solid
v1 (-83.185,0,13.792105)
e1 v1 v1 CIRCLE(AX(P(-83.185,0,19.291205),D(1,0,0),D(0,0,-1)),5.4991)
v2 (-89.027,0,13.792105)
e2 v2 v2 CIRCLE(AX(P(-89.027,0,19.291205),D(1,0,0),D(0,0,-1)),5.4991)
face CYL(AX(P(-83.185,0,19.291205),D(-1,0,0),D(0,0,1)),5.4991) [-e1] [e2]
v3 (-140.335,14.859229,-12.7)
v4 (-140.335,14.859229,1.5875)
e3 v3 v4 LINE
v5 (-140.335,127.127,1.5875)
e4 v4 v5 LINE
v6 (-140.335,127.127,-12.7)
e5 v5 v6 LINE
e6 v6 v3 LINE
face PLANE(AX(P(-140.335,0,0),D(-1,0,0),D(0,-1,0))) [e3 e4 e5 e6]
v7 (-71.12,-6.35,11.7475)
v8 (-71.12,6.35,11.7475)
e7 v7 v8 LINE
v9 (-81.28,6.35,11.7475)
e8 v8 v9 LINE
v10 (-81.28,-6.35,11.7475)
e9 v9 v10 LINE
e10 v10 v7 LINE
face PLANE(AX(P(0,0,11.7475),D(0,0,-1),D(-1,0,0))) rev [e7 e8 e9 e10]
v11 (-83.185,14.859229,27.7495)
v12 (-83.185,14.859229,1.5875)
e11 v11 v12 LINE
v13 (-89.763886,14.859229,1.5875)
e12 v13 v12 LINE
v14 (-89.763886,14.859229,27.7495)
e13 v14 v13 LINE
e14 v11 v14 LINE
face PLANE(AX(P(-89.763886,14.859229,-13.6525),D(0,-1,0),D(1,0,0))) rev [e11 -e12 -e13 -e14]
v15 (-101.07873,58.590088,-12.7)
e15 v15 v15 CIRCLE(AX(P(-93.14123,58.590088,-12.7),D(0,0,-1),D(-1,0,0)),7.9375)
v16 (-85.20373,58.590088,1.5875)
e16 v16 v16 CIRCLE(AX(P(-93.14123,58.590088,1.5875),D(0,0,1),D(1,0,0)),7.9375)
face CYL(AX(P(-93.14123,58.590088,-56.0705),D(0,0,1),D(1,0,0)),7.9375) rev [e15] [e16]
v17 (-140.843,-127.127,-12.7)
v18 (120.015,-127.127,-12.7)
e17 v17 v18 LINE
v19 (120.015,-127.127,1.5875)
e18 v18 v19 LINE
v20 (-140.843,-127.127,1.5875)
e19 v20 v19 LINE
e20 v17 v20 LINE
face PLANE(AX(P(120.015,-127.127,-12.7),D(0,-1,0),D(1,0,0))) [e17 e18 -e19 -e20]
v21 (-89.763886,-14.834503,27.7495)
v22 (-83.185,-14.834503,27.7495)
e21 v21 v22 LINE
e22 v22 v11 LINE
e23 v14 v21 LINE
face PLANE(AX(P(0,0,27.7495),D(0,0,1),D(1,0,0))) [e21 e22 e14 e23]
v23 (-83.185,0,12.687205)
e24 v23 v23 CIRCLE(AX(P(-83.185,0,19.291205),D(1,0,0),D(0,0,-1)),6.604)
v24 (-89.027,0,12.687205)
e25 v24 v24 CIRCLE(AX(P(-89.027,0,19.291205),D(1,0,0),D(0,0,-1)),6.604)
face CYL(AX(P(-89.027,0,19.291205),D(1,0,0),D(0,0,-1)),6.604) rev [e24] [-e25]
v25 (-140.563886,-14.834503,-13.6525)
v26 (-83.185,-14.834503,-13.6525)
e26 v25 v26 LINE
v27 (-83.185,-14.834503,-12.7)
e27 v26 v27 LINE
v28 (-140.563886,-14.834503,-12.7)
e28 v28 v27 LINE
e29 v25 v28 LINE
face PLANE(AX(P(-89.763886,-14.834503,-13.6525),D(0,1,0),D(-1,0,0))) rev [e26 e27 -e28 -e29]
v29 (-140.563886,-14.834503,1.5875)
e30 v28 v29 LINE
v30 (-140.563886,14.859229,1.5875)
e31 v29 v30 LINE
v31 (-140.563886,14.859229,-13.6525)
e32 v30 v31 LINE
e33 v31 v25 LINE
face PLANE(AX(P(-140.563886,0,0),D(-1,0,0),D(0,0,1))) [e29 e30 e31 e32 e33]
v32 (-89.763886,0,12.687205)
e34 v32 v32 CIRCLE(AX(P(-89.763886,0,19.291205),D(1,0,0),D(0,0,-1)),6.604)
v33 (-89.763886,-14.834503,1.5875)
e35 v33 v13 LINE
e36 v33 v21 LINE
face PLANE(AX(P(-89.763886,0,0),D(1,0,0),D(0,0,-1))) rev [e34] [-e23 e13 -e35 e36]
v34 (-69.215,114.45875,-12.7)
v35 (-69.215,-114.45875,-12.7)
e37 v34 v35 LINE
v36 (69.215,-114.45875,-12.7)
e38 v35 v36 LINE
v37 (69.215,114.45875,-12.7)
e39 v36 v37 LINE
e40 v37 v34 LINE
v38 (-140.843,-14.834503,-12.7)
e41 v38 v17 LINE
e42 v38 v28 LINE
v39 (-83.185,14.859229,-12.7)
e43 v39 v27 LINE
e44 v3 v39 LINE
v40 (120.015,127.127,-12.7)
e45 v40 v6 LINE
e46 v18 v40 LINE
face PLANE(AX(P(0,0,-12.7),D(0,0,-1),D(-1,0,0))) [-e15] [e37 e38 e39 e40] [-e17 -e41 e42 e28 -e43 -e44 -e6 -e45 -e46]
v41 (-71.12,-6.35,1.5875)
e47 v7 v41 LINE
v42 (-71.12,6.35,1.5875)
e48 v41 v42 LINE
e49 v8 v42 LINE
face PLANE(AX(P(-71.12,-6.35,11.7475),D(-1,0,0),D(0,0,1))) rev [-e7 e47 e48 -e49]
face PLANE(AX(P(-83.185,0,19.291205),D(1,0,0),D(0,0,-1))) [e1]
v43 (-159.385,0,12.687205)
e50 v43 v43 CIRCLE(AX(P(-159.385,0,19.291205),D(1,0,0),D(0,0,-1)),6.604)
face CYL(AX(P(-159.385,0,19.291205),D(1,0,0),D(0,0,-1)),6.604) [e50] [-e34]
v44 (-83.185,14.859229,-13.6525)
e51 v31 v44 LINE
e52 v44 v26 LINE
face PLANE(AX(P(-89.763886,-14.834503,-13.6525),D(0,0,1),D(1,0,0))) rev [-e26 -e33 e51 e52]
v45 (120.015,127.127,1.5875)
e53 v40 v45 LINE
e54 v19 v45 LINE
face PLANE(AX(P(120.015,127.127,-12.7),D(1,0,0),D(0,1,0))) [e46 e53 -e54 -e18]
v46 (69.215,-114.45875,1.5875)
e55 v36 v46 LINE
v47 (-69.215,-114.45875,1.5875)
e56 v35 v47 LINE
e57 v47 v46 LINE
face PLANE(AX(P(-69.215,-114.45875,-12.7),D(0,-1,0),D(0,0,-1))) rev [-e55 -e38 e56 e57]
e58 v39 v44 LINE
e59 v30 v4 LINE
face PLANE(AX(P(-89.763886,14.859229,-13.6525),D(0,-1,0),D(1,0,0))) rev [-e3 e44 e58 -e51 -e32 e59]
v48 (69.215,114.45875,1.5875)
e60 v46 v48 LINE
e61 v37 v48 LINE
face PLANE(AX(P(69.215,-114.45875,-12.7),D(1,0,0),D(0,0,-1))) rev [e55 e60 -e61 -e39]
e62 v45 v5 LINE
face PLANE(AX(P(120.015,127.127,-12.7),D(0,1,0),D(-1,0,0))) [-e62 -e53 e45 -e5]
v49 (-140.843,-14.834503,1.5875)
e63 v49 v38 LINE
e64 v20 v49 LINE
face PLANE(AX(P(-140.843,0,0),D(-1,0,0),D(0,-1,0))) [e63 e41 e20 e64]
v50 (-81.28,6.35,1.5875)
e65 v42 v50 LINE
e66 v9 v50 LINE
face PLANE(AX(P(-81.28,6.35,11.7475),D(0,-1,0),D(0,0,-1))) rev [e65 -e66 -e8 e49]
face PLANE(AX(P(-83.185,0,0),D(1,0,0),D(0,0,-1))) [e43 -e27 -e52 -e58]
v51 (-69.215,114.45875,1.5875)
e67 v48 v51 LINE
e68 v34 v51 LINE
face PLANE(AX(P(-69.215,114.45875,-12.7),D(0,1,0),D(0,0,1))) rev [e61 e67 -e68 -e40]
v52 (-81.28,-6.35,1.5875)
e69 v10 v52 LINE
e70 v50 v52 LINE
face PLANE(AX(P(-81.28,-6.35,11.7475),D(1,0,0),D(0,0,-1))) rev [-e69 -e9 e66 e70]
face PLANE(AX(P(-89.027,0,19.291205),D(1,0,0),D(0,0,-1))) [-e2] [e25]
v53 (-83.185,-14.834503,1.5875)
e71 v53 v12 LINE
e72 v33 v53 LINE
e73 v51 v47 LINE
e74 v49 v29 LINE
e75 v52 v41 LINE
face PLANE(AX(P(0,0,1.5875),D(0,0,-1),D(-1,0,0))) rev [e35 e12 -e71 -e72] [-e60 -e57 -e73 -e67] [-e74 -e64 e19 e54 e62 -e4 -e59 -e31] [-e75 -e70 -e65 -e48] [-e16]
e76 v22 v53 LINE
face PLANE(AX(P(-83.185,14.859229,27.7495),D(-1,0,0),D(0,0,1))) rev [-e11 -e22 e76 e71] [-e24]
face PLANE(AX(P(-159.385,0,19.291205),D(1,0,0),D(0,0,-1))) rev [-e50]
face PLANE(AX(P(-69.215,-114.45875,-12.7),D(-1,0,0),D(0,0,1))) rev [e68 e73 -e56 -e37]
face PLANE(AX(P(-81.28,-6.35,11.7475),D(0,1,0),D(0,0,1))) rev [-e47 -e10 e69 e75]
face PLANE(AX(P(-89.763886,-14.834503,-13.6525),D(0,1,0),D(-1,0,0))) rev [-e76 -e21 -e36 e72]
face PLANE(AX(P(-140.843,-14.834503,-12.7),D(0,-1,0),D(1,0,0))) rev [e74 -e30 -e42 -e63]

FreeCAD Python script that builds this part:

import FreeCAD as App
import Part
import Sketcher
Q = App.Units.Quantity


def add_polygon(sketch, points):
    """Adds a closed chain of lines whose ends are joined by coincident constraints."""
    first, n = sketch.GeometryCount, len(points)
    for a, b in zip(points, points[1:] + points[:1]):
        sketch.addGeometry(Part.LineSegment(App.Vector(*a, 0), App.Vector(*b, 0)), False)
    for i in range(n):
        sketch.addConstraint(Sketcher.Constraint("Coincident", first + i, 2, first + (i + 1) % n, 1))

doc = App.newDocument("Part")
params = doc.addObject("Spreadsheet::Sheet", "Params")
for row, (alias, value) in enumerate([
    ("sketch1_width", "8 in"),
    ("sketch1_width2", "5.45 in"),
    ("sketch1_height", "10.01 in"),
    ("pad1_length", "0.0625 in"),
    ("pad1_length2", "0.5 in"),
    ("sketch2_width", "0.4 in"),
    ("sketch2_height", "0.5 in"),
    ("pad2_length", "0.4 in"),
    ("sketch3_height", "0.6 in"),
    ("pad3_length", "6.578886 mm"),
    ("pad4_length", "1.03 in"),
    ("sketch5_diameter", "0.52 in"),
    ("pad5_length", "3 in"),
    ("sketch6_diameter", "0.52 in"),
    ("pocket1_length", "0.23 in"),
    ("sketch7_diameter", "0.433 in"),
    ("pad6_length", "0.23 in"),
    ("sketch8_height", "0.6 in"),
    ("pad7_length", "2 in"),
    ("sketch9_height", "0.5625 in"),
    ("pad8_length", "2.25 in"),
    ("sketch10_height", "0.5625 in"),
    ("pad9_length", "2.27 in"),
    ("sketch11_diameter", "0.625 in"),
    ("pocket2_length", "2.27 in"),
], start=1):
    params.set(f"A{row}", alias)
    params.set(f"B{row}", "=" + value)
    params.setAlias(f"B{row}", alias)

body = doc.addObject("PartDesign::Body", "Body")

# Sketch on XY plane
sketch1 = body.newObject("Sketcher::SketchObject", "Sketch")
sketch1.AttachmentSupport = (doc.getObject("XY_Plane"), [""])
sketch1.MapMode = "FlatFace"
add_polygon(sketch1, [(-83.185, 127.127), (-83.185, -127.127), (120.015, -127.127), (120.015, 127.127)])  # lines 0-3
add_polygon(sketch1, [(69.215, -114.45875), (-69.215, -114.45875), (-69.215, 114.45875), (69.215, 114.45875)])  # lines 4-7
sketch1.addConstraint(Sketcher.Constraint("Vertical", 0))
sketch1.addConstraint(Sketcher.Constraint("Horizontal", 1))
sketch1.addConstraint(Sketcher.Constraint("Vertical", 2))
sketch1.addConstraint(Sketcher.Constraint("Horizontal", 3))
sketch1.addConstraint(Sketcher.Constraint("Horizontal", 4))
sketch1.addConstraint(Sketcher.Constraint("Vertical", 5))
sketch1.addConstraint(Sketcher.Constraint("Horizontal", 6))
sketch1.addConstraint(Sketcher.Constraint("Vertical", 7))
sketch1.addConstraint(Sketcher.Constraint("Symmetric", 4, 2, 6, 2, -1, 1))
sketch1.addConstraint(Sketcher.Constraint("DistanceX", 1, 1, 1, 2, Q("8 in")))
sketch1.addConstraint(Sketcher.Constraint("DistanceX", 6, 2, 2, 2, Q("2 in")))
sketch1.addConstraint(Sketcher.Constraint("DistanceX", 4, 2, 4, 1, Q("5.45 in")))
sketch1.addConstraint(Sketcher.Constraint("DistanceY", 0, 2, 0, 1, Q("10.01 in")))
sketch1.addConstraint(Sketcher.Constraint("DistanceY", 5, 1, 5, 2, Q("9.0125 in")))
sketch1.addConstraint(Sketcher.Constraint("DistanceY", 0, 2, -1, 1, Q("5.005 in")))
sketch1.setExpression("Constraints[17]", "Params.sketch1_width")
sketch1.setExpression("Constraints[19]", "Params.sketch1_width2")
sketch1.setExpression("Constraints[20]", "Params.sketch1_height")
pad1 = body.newObject("PartDesign::Pad", "Pad")
pad1.Profile = sketch1
pad1.Type = "TwoLengths"
pad1.setExpression("Length", "Params.pad1_length")
pad1.setExpression("Length2", "Params.pad1_length2")

# Sketch on XY plane
sketch2 = body.newObject("Sketcher::SketchObject", "Sketch001")
sketch2.AttachmentSupport = (doc.getObject("XY_Plane"), [""])
sketch2.MapMode = "FlatFace"
sketch2.AttachmentOffset = App.Placement(App.Vector(0, 0, 0.0625 * 25.4), App.Rotation())
add_polygon(sketch2, [(-81.28, 6.35), (-81.28, -6.35), (-71.12, -6.35), (-71.12, 6.35)])  # lines 0-3
sketch2.addConstraint(Sketcher.Constraint("Vertical", 0))
sketch2.addConstraint(Sketcher.Constraint("Horizontal", 1))
sketch2.addConstraint(Sketcher.Constraint("Vertical", 2))
sketch2.addConstraint(Sketcher.Constraint("Horizontal", 3))
sketch2.addConstraint(Sketcher.Constraint("DistanceX", 1, 1, 1, 2, Q("0.4 in")))
sketch2.addConstraint(Sketcher.Constraint("DistanceY", 0, 2, 0, 1, Q("0.5 in")))
sketch2.addConstraint(Sketcher.Constraint("DistanceX", 0, 2, -1, 1, Q("3.2 in")))
sketch2.addConstraint(Sketcher.Constraint("DistanceY", 0, 2, -1, 1, Q("0.25 in")))
sketch2.setExpression("Constraints[8]", "Params.sketch2_width")
sketch2.setExpression("Constraints[9]", "Params.sketch2_height")
pad2 = body.newObject("PartDesign::Pad", "Pad001")
pad2.Profile = sketch2
pad2.setExpression("Length", "Params.pad2_length")

# Sketch on YZ plane
sketch3 = body.newObject("Sketcher::SketchObject", "Sketch002")
sketch3.AttachmentSupport = (doc.getObject("YZ_Plane"), [""])
sketch3.MapMode = "FlatFace"
sketch3.AttachmentOffset = App.Placement(App.Vector(0, 0, -3.275 * 25.4), App.Rotation())
add_polygon(sketch3, [(14.859229, -13.6525), (-14.834503, -13.6525), (-14.834503, 1.5875), (14.859229, 1.5875)])  # lines 0-3
sketch3.addConstraint(Sketcher.Constraint("Horizontal", 0))
sketch3.addConstraint(Sketcher.Constraint("Vertical", 1))
sketch3.addConstraint(Sketcher.Constraint("Horizontal", 2))
sketch3.addConstraint(Sketcher.Constraint("Vertical", 3))
sketch3.addConstraint(Sketcher.Constraint("DistanceY", 1, 1, 1, 2, Q("0.6 in")))
sketch3.addConstraint(Sketcher.Constraint("DistanceY", -1, 1, 1, 2, Q("0.0625 in")))
sketch3.addConstraint(Sketcher.Constraint("DistanceX", 0, 2, 0, 1, Q("29.693732 mm")))
sketch3.addConstraint(Sketcher.Constraint("DistanceX", -1, 1, 2, 2, Q("14.859229 mm")))
sketch3.setExpression("Constraints[8]", "Params.sketch3_height")
pad3 = body.newObject("PartDesign::Pad", "Pad002")
pad3.Profile = sketch3
pad3.setExpression("Length", "Params.pad3_length")
pad3.Reversed = True

# Sketch on XY plane
sketch4 = body.newObject("Sketcher::SketchObject", "Sketch003")
sketch4.AttachmentSupport = (doc.getObject("XY_Plane"), [""])
sketch4.MapMode = "FlatFace"
sketch4.AttachmentOffset = App.Placement(App.Vector(0, 0, 0.0625 * 25.4), App.Rotation())
add_polygon(sketch4, [(-89.763886, 14.859229), (-89.763886, -14.834503), (-83.185, -14.834503), (-83.185, 14.859229)])  # lines 0-3
sketch4.addConstraint(Sketcher.Constraint("Vertical", 0))
sketch4.addConstraint(Sketcher.Constraint("Horizontal", 1))
sketch4.addConstraint(Sketcher.Constraint("Vertical", 2))
sketch4.addConstraint(Sketcher.Constraint("Horizontal", 3))
sketch4.addConstraint(Sketcher.Constraint("DistanceX", 1, 2, -1, 1, Q("3.275 in")))
sketch4.addConstraint(Sketcher.Constraint("DistanceX", 1, 1, 1, 2, Q("6.578886 mm")))
sketch4.addConstraint(Sketcher.Constraint("DistanceY", 0, 2, 0, 1, Q("29.693732 mm")))
sketch4.addConstraint(Sketcher.Constraint("DistanceY", -1, 1, 2, 2, Q("14.859229 mm")))
pad4 = body.newObject("PartDesign::Pad", "Pad003")
pad4.Profile = sketch4
pad4.setExpression("Length", "Params.pad4_length")

# Sketch on YZ plane
sketch5 = body.newObject("Sketcher::SketchObject", "Sketch004")
sketch5.AttachmentSupport = (doc.getObject("YZ_Plane"), [""])
sketch5.MapMode = "FlatFace"
sketch5.AttachmentOffset = App.Placement(App.Vector(0, 0, -3.275 * 25.4), App.Rotation())
sketch5.addGeometry(Part.Circle(App.Vector(0, 19.291205, 0), App.Vector(0, 0, 1), 6.604), False)
sketch5.addConstraint(Sketcher.Constraint("PointOnObject", 0, 3, -2))
sketch5.addConstraint(Sketcher.Constraint("Diameter", 0, Q("0.52 in")))
sketch5.addConstraint(Sketcher.Constraint("DistanceY", -1, 1, 0, 3, Q("19.291205 mm")))
sketch5.setExpression("Constraints[1]", "Params.sketch5_diameter")
pad5 = body.newObject("PartDesign::Pad", "Pad004")
pad5.Profile = sketch5
pad5.setExpression("Length", "Params.pad5_length")
pad5.Reversed = True

# Sketch on YZ plane
sketch6 = body.newObject("Sketcher::SketchObject", "Sketch005")
sketch6.AttachmentSupport = (doc.getObject("YZ_Plane"), [""])
sketch6.MapMode = "FlatFace"
sketch6.AttachmentOffset = App.Placement(App.Vector(0, 0, -3.275 * 25.4), App.Rotation())
sketch6.addGeometry(Part.Circle(App.Vector(0, 19.291205, 0), App.Vector(0, 0, 1), 6.604), False)
sketch6.addConstraint(Sketcher.Constraint("PointOnObject", 0, 3, -2))
sketch6.addConstraint(Sketcher.Constraint("Diameter", 0, Q("0.52 in")))
sketch6.addConstraint(Sketcher.Constraint("DistanceY", -1, 1, 0, 3, Q("19.291205 mm")))
sketch6.setExpression("Constraints[1]", "Params.sketch6_diameter")
pocket1 = body.newObject("PartDesign::Pocket", "Pocket")
pocket1.Profile = sketch6
pocket1.setExpression("Length", "Params.pocket1_length")

# Sketch on YZ plane
sketch7 = body.newObject("Sketcher::SketchObject", "Sketch006")
sketch7.AttachmentSupport = (doc.getObject("YZ_Plane"), [""])
sketch7.MapMode = "FlatFace"
sketch7.AttachmentOffset = App.Placement(App.Vector(0, 0, -3.505 * 25.4), App.Rotation())
sketch7.addGeometry(Part.Circle(App.Vector(0, 19.291205, 0), App.Vector(0, 0, 1), 5.4991), False)
sketch7.addConstraint(Sketcher.Constraint("PointOnObject", 0, 3, -2))
sketch7.addConstraint(Sketcher.Constraint("Diameter", 0, Q("0.433 in")))
sketch7.addConstraint(Sketcher.Constraint("DistanceY", -1, 1, 0, 3, Q("19.291205 mm")))
sketch7.setExpression("Constraints[1]", "Params.sketch7_diameter")
pad6 = body.newObject("PartDesign::Pad", "Pad005")
pad6.Profile = sketch7
pad6.setExpression("Length", "Params.pad6_length")

# Sketch on YZ plane
sketch8 = body.newObject("Sketcher::SketchObject", "Sketch007")
sketch8.AttachmentSupport = (doc.getObject("YZ_Plane"), [""])
sketch8.MapMode = "FlatFace"
sketch8.AttachmentOffset = App.Placement(App.Vector(0, 0, -89.763886), App.Rotation())
add_polygon(sketch8, [(14.859229, -13.6525), (-14.834503, -13.6525), (-14.834503, 1.5875), (14.859229, 1.5875)])  # lines 0-3
sketch8.addConstraint(Sketcher.Constraint("Horizontal", 0))
sketch8.addConstraint(Sketcher.Constraint("Vertical", 1))
sketch8.addConstraint(Sketcher.Constraint("Horizontal", 2))
sketch8.addConstraint(Sketcher.Constraint("Vertical", 3))
sketch8.addConstraint(Sketcher.Constraint("DistanceY", 1, 1, 1, 2, Q("0.6 in")))
sketch8.addConstraint(Sketcher.Constraint("DistanceY", -1, 1, 1, 2, Q("0.0625 in")))
sketch8.addConstraint(Sketcher.Constraint("DistanceX", 0, 2, 0, 1, Q("29.693732 mm")))
sketch8.addConstraint(Sketcher.Constraint("DistanceX", -1, 1, 2, 2, Q("14.859229 mm")))
sketch8.setExpression("Constraints[8]", "Params.sketch8_height")
pad7 = body.newObject("PartDesign::Pad", "Pad006")
pad7.Profile = sketch8
pad7.setExpression("Length", "Params.pad7_length")
pad7.Reversed = True

# Sketch on YZ plane
sketch9 = body.newObject("Sketcher::SketchObject", "Sketch008")
sketch9.AttachmentSupport = (doc.getObject("YZ_Plane"), [""])
sketch9.MapMode = "FlatFace"
sketch9.AttachmentOffset = App.Placement(App.Vector(0, 0, -3.275 * 25.4), App.Rotation())
add_polygon(sketch9, [(127.127, -12.7), (14.859229, -12.7), (14.859229, 1.5875), (127.127, 1.5875)])  # lines 0-3
sketch9.addConstraint(Sketcher.Constraint("Horizontal", 0))
sketch9.addConstraint(Sketcher.Constraint("Vertical", 1))
sketch9.addConstraint(Sketcher.Constraint("Horizontal", 2))
sketch9.addConstraint(Sketcher.Constraint("Vertical", 3))
sketch9.addConstraint(Sketcher.Constraint("DistanceY", 0, 2, -1, 1, Q("0.5 in")))
sketch9.addConstraint(Sketcher.Constraint("DistanceY", 1, 1, 1, 2, Q("0.5625 in")))
sketch9.addConstraint(Sketcher.Constraint("DistanceX", -1, 1, 2, 2, Q("5.005 in")))
sketch9.addConstraint(Sketcher.Constraint("DistanceX", 0, 2, 0, 1, Q("112.267771 mm")))
sketch9.setExpression("Constraints[9]", "Params.sketch9_height")
pad8 = body.newObject("PartDesign::Pad", "Pad007")
pad8.Profile = sketch9
pad8.setExpression("Length", "Params.pad8_length")
pad8.Reversed = True

# Sketch on YZ plane
sketch10 = body.newObject("Sketcher::SketchObject", "Sketch009")
sketch10.AttachmentSupport = (doc.getObject("YZ_Plane"), [""])
sketch10.MapMode = "FlatFace"
sketch10.AttachmentOffset = App.Placement(App.Vector(0, 0, -3.275 * 25.4), App.Rotation())
add_polygon(sketch10, [(-14.834503, -12.7), (-127.127, -12.7), (-127.127, 1.5875), (-14.834503, 1.5875)])  # lines 0-3
sketch10.addConstraint(Sketcher.Constraint("Horizontal", 0))
sketch10.addConstraint(Sketcher.Constraint("Vertical", 1))
sketch10.addConstraint(Sketcher.Constraint("Horizontal", 2))
sketch10.addConstraint(Sketcher.Constraint("Vertical", 3))
sketch10.addConstraint(Sketcher.Constraint("DistanceY", 0, 2, -1, 1, Q("0.5 in")))
sketch10.addConstraint(Sketcher.Constraint("DistanceY", 1, 1, 1, 2, Q("0.5625 in")))
sketch10.addConstraint(Sketcher.Constraint("DistanceX", 0, 2, -1, 1, Q("5.005 in")))
sketch10.addConstraint(Sketcher.Constraint("DistanceX", 0, 2, 0, 1, Q("112.292497 mm")))
sketch10.setExpression("Constraints[9]", "Params.sketch10_height")
pad9 = body.newObject("PartDesign::Pad", "Pad008")
pad9.Profile = sketch10
pad9.setExpression("Length", "Params.pad9_length")
pad9.Reversed = True

# Sketch on XY plane
sketch11 = body.newObject("Sketcher::SketchObject", "Sketch010")
sketch11.AttachmentSupport = (doc.getObject("XY_Plane"), [""])
sketch11.MapMode = "FlatFace"
sketch11.AttachmentOffset = App.Placement(App.Vector(0, 0, 0.0625 * 25.4), App.Rotation())
sketch11.addGeometry(Part.Circle(App.Vector(-93.14123, 58.590088, 0), App.Vector(0, 0, 1), 7.9375), False)
sketch11.addConstraint(Sketcher.Constraint("Diameter", 0, Q("0.625 in")))
sketch11.addConstraint(Sketcher.Constraint("DistanceX", 0, 3, -1, 1, Q("93.14123 mm")))
sketch11.addConstraint(Sketcher.Constraint("DistanceY", -1, 1, 0, 3, Q("58.590088 mm")))
sketch11.setExpression("Constraints[0]", "Params.sketch11_diameter")
pocket2 = body.newObject("PartDesign::Pocket", "Pocket001")
pocket2.Profile = sketch11
pocket2.setExpression("Length", "Params.pocket2_length")

doc.recompute()
